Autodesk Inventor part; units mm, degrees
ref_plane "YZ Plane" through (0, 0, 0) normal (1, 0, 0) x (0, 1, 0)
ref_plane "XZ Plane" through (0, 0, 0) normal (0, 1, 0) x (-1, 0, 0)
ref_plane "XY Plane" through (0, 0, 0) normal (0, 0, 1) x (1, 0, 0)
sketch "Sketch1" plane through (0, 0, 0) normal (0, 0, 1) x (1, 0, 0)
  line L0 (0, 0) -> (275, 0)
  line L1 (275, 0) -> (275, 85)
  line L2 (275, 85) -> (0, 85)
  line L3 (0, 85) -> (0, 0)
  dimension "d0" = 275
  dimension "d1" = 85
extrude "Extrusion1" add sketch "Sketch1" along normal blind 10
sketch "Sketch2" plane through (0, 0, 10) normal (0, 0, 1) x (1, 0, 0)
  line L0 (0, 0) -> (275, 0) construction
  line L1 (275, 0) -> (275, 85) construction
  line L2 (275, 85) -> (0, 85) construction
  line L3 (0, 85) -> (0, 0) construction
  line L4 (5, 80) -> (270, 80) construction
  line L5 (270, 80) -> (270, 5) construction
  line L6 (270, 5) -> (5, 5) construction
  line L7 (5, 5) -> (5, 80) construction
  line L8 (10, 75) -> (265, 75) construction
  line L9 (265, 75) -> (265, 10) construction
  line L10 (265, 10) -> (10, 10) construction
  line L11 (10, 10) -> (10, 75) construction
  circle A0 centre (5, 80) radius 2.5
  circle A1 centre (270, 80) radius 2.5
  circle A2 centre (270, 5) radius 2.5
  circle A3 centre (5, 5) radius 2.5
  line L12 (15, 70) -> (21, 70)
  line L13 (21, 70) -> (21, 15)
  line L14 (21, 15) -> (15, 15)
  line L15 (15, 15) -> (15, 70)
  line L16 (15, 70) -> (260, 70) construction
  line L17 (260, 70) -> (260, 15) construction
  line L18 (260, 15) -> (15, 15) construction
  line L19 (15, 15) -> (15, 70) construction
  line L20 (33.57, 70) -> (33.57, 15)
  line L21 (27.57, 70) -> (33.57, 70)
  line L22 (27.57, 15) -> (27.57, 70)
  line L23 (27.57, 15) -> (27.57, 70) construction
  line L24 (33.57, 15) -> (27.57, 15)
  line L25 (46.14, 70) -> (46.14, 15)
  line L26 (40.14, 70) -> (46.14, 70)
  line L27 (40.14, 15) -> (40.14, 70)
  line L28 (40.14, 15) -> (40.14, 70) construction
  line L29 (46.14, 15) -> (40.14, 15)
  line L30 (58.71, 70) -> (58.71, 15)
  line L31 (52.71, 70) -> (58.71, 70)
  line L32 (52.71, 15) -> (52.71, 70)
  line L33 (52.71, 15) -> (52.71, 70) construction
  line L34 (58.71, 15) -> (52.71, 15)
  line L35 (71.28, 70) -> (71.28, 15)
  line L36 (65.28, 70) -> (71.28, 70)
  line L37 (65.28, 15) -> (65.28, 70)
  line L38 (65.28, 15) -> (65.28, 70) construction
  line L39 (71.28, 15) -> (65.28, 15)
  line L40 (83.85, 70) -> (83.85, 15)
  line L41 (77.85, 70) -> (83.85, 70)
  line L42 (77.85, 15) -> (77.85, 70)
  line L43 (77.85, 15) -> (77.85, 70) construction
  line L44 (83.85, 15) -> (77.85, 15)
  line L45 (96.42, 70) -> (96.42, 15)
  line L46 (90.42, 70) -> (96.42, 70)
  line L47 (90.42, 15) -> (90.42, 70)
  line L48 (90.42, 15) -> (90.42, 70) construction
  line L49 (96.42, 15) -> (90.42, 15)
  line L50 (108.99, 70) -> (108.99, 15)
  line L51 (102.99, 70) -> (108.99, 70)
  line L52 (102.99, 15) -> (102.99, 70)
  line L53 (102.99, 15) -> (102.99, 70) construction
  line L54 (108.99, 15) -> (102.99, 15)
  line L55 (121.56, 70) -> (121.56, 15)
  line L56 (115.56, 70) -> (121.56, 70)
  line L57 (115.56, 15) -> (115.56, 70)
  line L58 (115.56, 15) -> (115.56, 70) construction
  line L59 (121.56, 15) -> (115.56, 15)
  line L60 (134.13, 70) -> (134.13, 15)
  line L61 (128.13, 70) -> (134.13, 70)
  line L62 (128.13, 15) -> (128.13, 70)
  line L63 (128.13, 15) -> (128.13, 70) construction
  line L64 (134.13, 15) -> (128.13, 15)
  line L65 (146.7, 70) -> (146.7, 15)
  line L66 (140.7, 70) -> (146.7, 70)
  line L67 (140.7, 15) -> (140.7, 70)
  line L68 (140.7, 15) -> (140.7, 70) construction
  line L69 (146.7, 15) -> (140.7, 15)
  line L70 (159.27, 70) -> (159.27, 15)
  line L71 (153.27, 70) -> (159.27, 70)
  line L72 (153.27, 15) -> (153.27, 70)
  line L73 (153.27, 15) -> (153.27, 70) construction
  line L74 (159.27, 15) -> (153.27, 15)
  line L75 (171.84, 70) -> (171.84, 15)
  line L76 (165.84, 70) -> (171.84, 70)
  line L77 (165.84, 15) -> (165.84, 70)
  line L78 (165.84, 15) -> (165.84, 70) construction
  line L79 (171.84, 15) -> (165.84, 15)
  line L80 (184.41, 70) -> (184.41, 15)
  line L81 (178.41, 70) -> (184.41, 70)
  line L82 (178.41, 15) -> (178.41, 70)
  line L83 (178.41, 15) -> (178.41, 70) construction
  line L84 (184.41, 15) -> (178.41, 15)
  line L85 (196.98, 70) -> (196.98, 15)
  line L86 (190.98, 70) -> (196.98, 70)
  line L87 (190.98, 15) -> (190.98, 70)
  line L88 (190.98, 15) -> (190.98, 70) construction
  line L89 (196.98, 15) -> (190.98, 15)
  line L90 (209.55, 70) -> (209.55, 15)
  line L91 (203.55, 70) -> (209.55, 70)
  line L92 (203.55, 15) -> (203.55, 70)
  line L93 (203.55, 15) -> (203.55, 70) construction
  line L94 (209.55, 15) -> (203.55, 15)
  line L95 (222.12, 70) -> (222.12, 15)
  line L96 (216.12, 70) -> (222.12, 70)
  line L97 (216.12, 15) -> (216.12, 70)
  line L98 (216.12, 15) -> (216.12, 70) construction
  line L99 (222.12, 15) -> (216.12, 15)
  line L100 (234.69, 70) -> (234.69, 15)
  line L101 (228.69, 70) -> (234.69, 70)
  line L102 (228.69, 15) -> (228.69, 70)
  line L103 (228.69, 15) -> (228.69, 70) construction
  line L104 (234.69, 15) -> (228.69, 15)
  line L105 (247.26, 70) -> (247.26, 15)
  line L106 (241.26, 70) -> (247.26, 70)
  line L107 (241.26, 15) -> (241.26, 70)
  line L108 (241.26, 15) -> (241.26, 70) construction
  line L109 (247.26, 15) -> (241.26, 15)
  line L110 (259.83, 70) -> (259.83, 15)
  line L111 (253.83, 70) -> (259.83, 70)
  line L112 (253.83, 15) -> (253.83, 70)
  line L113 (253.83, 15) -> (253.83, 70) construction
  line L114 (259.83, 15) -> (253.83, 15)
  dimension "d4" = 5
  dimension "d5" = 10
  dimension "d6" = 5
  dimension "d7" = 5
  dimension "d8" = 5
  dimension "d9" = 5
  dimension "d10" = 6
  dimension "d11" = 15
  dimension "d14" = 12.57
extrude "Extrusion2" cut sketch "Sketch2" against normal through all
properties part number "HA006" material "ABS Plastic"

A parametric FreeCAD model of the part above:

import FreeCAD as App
import Part
import Sketcher
from FreeCAD import Vector
Q = App.Units.Quantity


def add_polygon(sketch, points):
    """Adds a closed chain of lines whose ends are joined by coincident constraints."""
    first, n = sketch.GeometryCount, len(points)
    for a, b in zip(points, points[1:] + points[:1]):
        sketch.addGeometry(Part.LineSegment(App.Vector(*a, 0), App.Vector(*b, 0)), False)
    for i in range(n):
        sketch.addConstraint(Sketcher.Constraint("Coincident", first + i, 2, first + (i + 1) % n, 1))

doc = App.newDocument("Part")
body = doc.addObject("PartDesign::Body", "Body")

# Sketch on XY plane
sketch1 = doc.addObject("Sketcher::SketchObject", "Sketch")
body.addObject(sketch1)
sketch1.AttachmentSupport = (doc.XY_Plane, [""])
sketch1.MapMode = "FlatFace"
add_polygon(sketch1, [(0, 85), (0, 0), (275, 0), (275, 85)])  # lines 0-3
sketch1.addConstraint(Sketcher.Constraint("Vertical", 0))
sketch1.addConstraint(Sketcher.Constraint("Horizontal", 1))
sketch1.addConstraint(Sketcher.Constraint("Vertical", 2))
sketch1.addConstraint(Sketcher.Constraint("Horizontal", 3))
sketch1.addConstraint(Sketcher.Constraint("Coincident", 0, 2, -1, 1))
sketch1.addConstraint(Sketcher.Constraint("DistanceX", 1, 1, 1, 2, Q("275 mm")))
sketch1.addConstraint(Sketcher.Constraint("DistanceY", 0, 2, 0, 1, Q("85 mm")))
pad1 = doc.addObject("PartDesign::Pad", "Pad")
body.addObject(pad1)
pad1.Profile = sketch1
pad1.Length = 10

# Sketch on XY plane
sketch2 = doc.addObject("Sketcher::SketchObject", "Sketch001")
body.addObject(sketch2)
sketch2.AttachmentSupport = (doc.XY_Plane, [""])
sketch2.MapMode = "FlatFace"
sketch2.AttachmentOffset = App.Placement(Vector(0, 0, 10), App.Rotation())
sketch2.addGeometry(Part.Circle(Vector(5, 80, 0), Vector(0, 0, 1), 2.5), False)  # 0
sketch2.addGeometry(Part.Circle(Vector(270, 80, 0), Vector(0, 0, 1), 2.5), False)  # 1
sketch2.addGeometry(Part.Circle(Vector(270, 5, 0), Vector(0, 0, 1), 2.5), False)  # 2
sketch2.addGeometry(Part.Circle(Vector(5, 5, 0), Vector(0, 0, 1), 2.5), False)  # 3
add_polygon(sketch2, [(21, 70), (15, 70), (15, 15), (21, 15)])  # lines 4-7
add_polygon(sketch2, [(33.6, 15), (33.6, 70), (27.6, 70), (27.6, 15)])  # lines 8-11
add_polygon(sketch2, [(46.1, 15), (46.1, 70), (40.1, 70), (40.1, 15)])  # lines 12-15
add_polygon(sketch2, [(58.7, 15), (58.7, 70), (52.7, 70), (52.7, 15)])  # lines 16-19
add_polygon(sketch2, [(71.3, 15), (71.3, 70), (65.3, 70), (65.3, 15)])  # lines 20-23
add_polygon(sketch2, [(83.8, 15), (83.8, 70), (77.8, 70), (77.8, 15)])  # lines 24-27
add_polygon(sketch2, [(96.4, 15), (96.4, 70), (90.4, 70), (90.4, 15)])  # lines 28-31
add_polygon(sketch2, [(109, 15), (109, 70), (103, 70), (103, 15)])  # lines 32-35
add_polygon(sketch2, [(121.6, 15), (121.6, 70), (115.6, 70), (115.6, 15)])  # lines 36-39
add_polygon(sketch2, [(134.1, 15), (134.1, 70), (128.1, 70), (128.1, 15)])  # lines 40-43
add_polygon(sketch2, [(146.7, 15), (146.7, 70), (140.7, 70), (140.7, 15)])  # lines 44-47
add_polygon(sketch2, [(159.3, 15), (159.3, 70), (153.3, 70), (153.3, 15)])  # lines 48-51
add_polygon(sketch2, [(171.8, 15), (171.8, 70), (165.8, 70), (165.8, 15)])  # lines 52-55
add_polygon(sketch2, [(184.4, 15), (184.4, 70), (178.4, 70), (178.4, 15)])  # lines 56-59
add_polygon(sketch2, [(197, 15), (197, 70), (191, 70), (191, 15)])  # lines 60-63
add_polygon(sketch2, [(209.6, 15), (209.6, 70), (203.6, 70), (203.6, 15)])  # lines 64-67
add_polygon(sketch2, [(222.1, 15), (222.1, 70), (216.1, 70), (216.1, 15)])  # lines 68-71
add_polygon(sketch2, [(234.7, 15), (234.7, 70), (228.7, 70), (228.7, 15)])  # lines 72-75
add_polygon(sketch2, [(247.3, 15), (247.3, 70), (241.3, 70), (241.3, 15)])  # lines 76-79
add_polygon(sketch2, [(259.8, 15), (259.8, 70), (253.8, 70), (253.8, 15)])  # lines 80-83
sketch2.addConstraint(Sketcher.Constraint("Horizontal", 4))
sketch2.addConstraint(Sketcher.Constraint("Vertical", 5))
sketch2.addConstraint(Sketcher.Constraint("Horizontal", 6))
sketch2.addConstraint(Sketcher.Constraint("Vertical", 7))
sketch2.addConstraint(Sketcher.Constraint("Vertical", 8))
sketch2.addConstraint(Sketcher.Constraint("Horizontal", 9))
sketch2.addConstraint(Sketcher.Constraint("Vertical", 10))
sketch2.addConstraint(Sketcher.Constraint("Horizontal", 11))
sketch2.addConstraint(Sketcher.Constraint("Vertical", 12))
sketch2.addConstraint(Sketcher.Constraint("Horizontal", 13))
sketch2.addConstraint(Sketcher.Constraint("Vertical", 14))
sketch2.addConstraint(Sketcher.Constraint("Horizontal", 15))
sketch2.addConstraint(Sketcher.Constraint("Vertical", 16))
sketch2.addConstraint(Sketcher.Constraint("Horizontal", 17))
sketch2.addConstraint(Sketcher.Constraint("Vertical", 18))
sketch2.addConstraint(Sketcher.Constraint("Horizontal", 19))
sketch2.addConstraint(Sketcher.Constraint("Vertical", 20))
sketch2.addConstraint(Sketcher.Constraint("Horizontal", 21))
sketch2.addConstraint(Sketcher.Constraint("Vertical", 22))
sketch2.addConstraint(Sketcher.Constraint("Horizontal", 23))
sketch2.addConstraint(Sketcher.Constraint("Vertical", 24))
sketch2.addConstraint(Sketcher.Constraint("Horizontal", 25))
sketch2.addConstraint(Sketcher.Constraint("Vertical", 26))
sketch2.addConstraint(Sketcher.Constraint("Horizontal", 27))
sketch2.addConstraint(Sketcher.Constraint("Vertical", 28))
sketch2.addConstraint(Sketcher.Constraint("Horizontal", 29))
sketch2.addConstraint(Sketcher.Constraint("Vertical", 30))
sketch2.addConstraint(Sketcher.Constraint("Horizontal", 31))
sketch2.addConstraint(Sketcher.Constraint("Vertical", 32))
sketch2.addConstraint(Sketcher.Constraint("Horizontal", 33))
sketch2.addConstraint(Sketcher.Constraint("Vertical", 34))
sketch2.addConstraint(Sketcher.Constraint("Horizontal", 35))
sketch2.addConstraint(Sketcher.Constraint("Vertical", 36))
sketch2.addConstraint(Sketcher.Constraint("Horizontal", 37))
sketch2.addConstraint(Sketcher.Constraint("Vertical", 38))
sketch2.addConstraint(Sketcher.Constraint("Horizontal", 39))
sketch2.addConstraint(Sketcher.Constraint("Vertical", 40))
sketch2.addConstraint(Sketcher.Constraint("Horizontal", 41))
sketch2.addConstraint(Sketcher.Constraint("Vertical", 42))
sketch2.addConstraint(Sketcher.Constraint("Horizontal", 43))
sketch2.addConstraint(Sketcher.Constraint("Vertical", 44))
sketch2.addConstraint(Sketcher.Constraint("Horizontal", 45))
sketch2.addConstraint(Sketcher.Constraint("Vertical", 46))
sketch2.addConstraint(Sketcher.Constraint("Horizontal", 47))
sketch2.addConstraint(Sketcher.Constraint("Vertical", 48))
sketch2.addConstraint(Sketcher.Constraint("Horizontal", 49))
sketch2.addConstraint(Sketcher.Constraint("Vertical", 50))
sketch2.addConstraint(Sketcher.Constraint("Horizontal", 51))
sketch2.addConstraint(Sketcher.Constraint("Vertical", 52))
sketch2.addConstraint(Sketcher.Constraint("Horizontal", 53))
sketch2.addConstraint(Sketcher.Constraint("Vertical", 54))
sketch2.addConstraint(Sketcher.Constraint("Horizontal", 55))
sketch2.addConstraint(Sketcher.Constraint("Vertical", 56))
sketch2.addConstraint(Sketcher.Constraint("Horizontal", 57))
sketch2.addConstraint(Sketcher.Constraint("Vertical", 58))
sketch2.addConstraint(Sketcher.Constraint("Horizontal", 59))
sketch2.addConstraint(Sketcher.Constraint("Vertical", 60))
sketch2.addConstraint(Sketcher.Constraint("Horizontal", 61))
sketch2.addConstraint(Sketcher.Constraint("Vertical", 62))
sketch2.addConstraint(Sketcher.Constraint("Horizontal", 63))
sketch2.addConstraint(Sketcher.Constraint("Vertical", 64))
sketch2.addConstraint(Sketcher.Constraint("Horizontal", 65))
sketch2.addConstraint(Sketcher.Constraint("Vertical", 66))
sketch2.addConstraint(Sketcher.Constraint("Horizontal", 67))
sketch2.addConstraint(Sketcher.Constraint("Vertical", 68))
sketch2.addConstraint(Sketcher.Constraint("Horizontal", 69))
sketch2.addConstraint(Sketcher.Constraint("Vertical", 70))
sketch2.addConstraint(Sketcher.Constraint("Horizontal", 71))
sketch2.addConstraint(Sketcher.Constraint("Vertical", 72))
sketch2.addConstraint(Sketcher.Constraint("Horizontal", 73))
sketch2.addConstraint(Sketcher.Constraint("Vertical", 74))
sketch2.addConstraint(Sketcher.Constraint("Horizontal", 75))
sketch2.addConstraint(Sketcher.Constraint("Vertical", 76))
sketch2.addConstraint(Sketcher.Constraint("Horizontal", 77))
sketch2.addConstraint(Sketcher.Constraint("Vertical", 78))
sketch2.addConstraint(Sketcher.Constraint("Horizontal", 79))
sketch2.addConstraint(Sketcher.Constraint("Vertical", 80))
sketch2.addConstraint(Sketcher.Constraint("Horizontal", 81))
sketch2.addConstraint(Sketcher.Constraint("Vertical", 82))
sketch2.addConstraint(Sketcher.Constraint("Horizontal", 83))
sketch2.addConstraint(Sketcher.Constraint("Equal", 0, 1))
sketch2.addConstraint(Sketcher.Constraint("Equal", 1, 2))
sketch2.addConstraint(Sketcher.Constraint("Equal", 2, 3))
sketch2.addConstraint(Sketcher.Constraint("Horizontal", 0, 3, 1, 3))
sketch2.addConstraint(Sketcher.Constraint("Horizontal", 2, 3, 3, 3))
sketch2.addConstraint(Sketcher.Constraint("Horizontal", 7, 2, 8, 2))
sketch2.addConstraint(Sketcher.Constraint("Horizontal", 6, 2, 10, 2))
sketch2.addConstraint(Sketcher.Constraint("Horizontal", 9, 2, 12, 2))
sketch2.addConstraint(Sketcher.Constraint("Horizontal", 11, 2, 14, 2))
sketch2.addConstraint(Sketcher.Constraint("Horizontal", 13, 2, 16, 2))
sketch2.addConstraint(Sketcher.Constraint("Horizontal", 15, 2, 18, 2))
sketch2.addConstraint(Sketcher.Constraint("Horizontal", 17, 2, 20, 2))
sketch2.addConstraint(Sketcher.Constraint("Horizontal", 19, 2, 22, 2))
sketch2.addConstraint(Sketcher.Constraint("Horizontal", 21, 2, 24, 2))
sketch2.addConstraint(Sketcher.Constraint("Horizontal", 23, 2, 26, 2))
sketch2.addConstraint(Sketcher.Constraint("Horizontal", 25, 2, 28, 2))
sketch2.addConstraint(Sketcher.Constraint("Horizontal", 27, 2, 30, 2))
sketch2.addConstraint(Sketcher.Constraint("Horizontal", 29, 2, 32, 2))
sketch2.addConstraint(Sketcher.Constraint("Horizontal", 31, 2, 34, 2))
sketch2.addConstraint(Sketcher.Constraint("Horizontal", 33, 2, 36, 2))
sketch2.addConstraint(Sketcher.Constraint("Horizontal", 35, 2, 38, 2))
sketch2.addConstraint(Sketcher.Constraint("Horizontal", 37, 2, 40, 2))
sketch2.addConstraint(Sketcher.Constraint("Horizontal", 39, 2, 42, 2))
sketch2.addConstraint(Sketcher.Constraint("Horizontal", 41, 2, 44, 2))
sketch2.addConstraint(Sketcher.Constraint("Horizontal", 43, 2, 46, 2))
sketch2.addConstraint(Sketcher.Constraint("Horizontal", 45, 2, 48, 2))
sketch2.addConstraint(Sketcher.Constraint("Horizontal", 47, 2, 50, 2))
sketch2.addConstraint(Sketcher.Constraint("Horizontal", 49, 2, 52, 2))
sketch2.addConstraint(Sketcher.Constraint("Horizontal", 51, 2, 54, 2))
sketch2.addConstraint(Sketcher.Constraint("Horizontal", 53, 2, 56, 2))
sketch2.addConstraint(Sketcher.Constraint("Horizontal", 55, 2, 58, 2))
sketch2.addConstraint(Sketcher.Constraint("Horizontal", 57, 2, 60, 2))
sketch2.addConstraint(Sketcher.Constraint("Horizontal", 59, 2, 62, 2))
sketch2.addConstraint(Sketcher.Constraint("Horizontal", 61, 2, 64, 2))
sketch2.addConstraint(Sketcher.Constraint("Horizontal", 63, 2, 66, 2))
sketch2.addConstraint(Sketcher.Constraint("Horizontal", 65, 2, 68, 2))
sketch2.addConstraint(Sketcher.Constraint("Horizontal", 67, 2, 70, 2))
sketch2.addConstraint(Sketcher.Constraint("Horizontal", 69, 2, 72, 2))
sketch2.addConstraint(Sketcher.Constraint("Horizontal", 71, 2, 74, 2))
sketch2.addConstraint(Sketcher.Constraint("Horizontal", 73, 2, 76, 2))
sketch2.addConstraint(Sketcher.Constraint("Horizontal", 75, 2, 78, 2))
sketch2.addConstraint(Sketcher.Constraint("Horizontal", 77, 2, 80, 2))
sketch2.addConstraint(Sketcher.Constraint("Horizontal", 79, 2, 82, 2))
sketch2.addConstraint(Sketcher.Constraint("Vertical", 1, 3, 2, 3))
sketch2.addConstraint(Sketcher.Constraint("Vertical", 0, 3, 3, 3))
sketch2.addConstraint(Sketcher.Constraint("Equal", 6, 9))
sketch2.addConstraint(Sketcher.Constraint("Equal", 11, 13))
sketch2.addConstraint(Sketcher.Constraint("Equal", 15, 17))
sketch2.addConstraint(Sketcher.Constraint("Equal", 19, 21))
sketch2.addConstraint(Sketcher.Constraint("Equal", 23, 25))
sketch2.addConstraint(Sketcher.Constraint("Equal", 27, 29))
sketch2.addConstraint(Sketcher.Constraint("Equal", 31, 33))
sketch2.addConstraint(Sketcher.Constraint("Equal", 35, 37))
sketch2.addConstraint(Sketcher.Constraint("Equal", 39, 41))
sketch2.addConstraint(Sketcher.Constraint("Equal", 43, 45))
sketch2.addConstraint(Sketcher.Constraint("Equal", 47, 49))
sketch2.addConstraint(Sketcher.Constraint("Equal", 51, 53))
sketch2.addConstraint(Sketcher.Constraint("Equal", 55, 57))
sketch2.addConstraint(Sketcher.Constraint("Equal", 59, 61))
sketch2.addConstraint(Sketcher.Constraint("Equal", 63, 65))
sketch2.addConstraint(Sketcher.Constraint("Equal", 67, 69))
sketch2.addConstraint(Sketcher.Constraint("Equal", 71, 73))
sketch2.addConstraint(Sketcher.Constraint("Equal", 75, 77))
sketch2.addConstraint(Sketcher.Constraint("Equal", 79, 81))
sketch2.addConstraint(Sketcher.Constraint("Diameter", 0, Q("5 mm")))
sketch2.addConstraint(Sketcher.Constraint("DistanceX", 4, 2, 4, 1, Q("6 mm")))
sketch2.addConstraint(Sketcher.Constraint("DistanceX", -1, 1, 0, 3, Q("5 mm")))
sketch2.addConstraint(Sketcher.Constraint("DistanceY", -1, 1, 2, 3, Q("5 mm")))
sketch2.addConstraint(Sketcher.Constraint("DistanceX", -1, 1, 4, 2, Q("15 mm")))
sketch2.addConstraint(Sketcher.Constraint("DistanceY", -1, 1, 5, 2, Q("15 mm")))
sketch2.addConstraint(Sketcher.Constraint("DistanceY", 5, 2, 5, 1, Q("55 mm")))
sketch2.addConstraint(Sketcher.Constraint("DistanceY", -1, 1, 0, 3, Q("80 mm")))
sketch2.addConstraint(Sketcher.Constraint("DistanceX", -1, 1, 1, 3, Q("270 mm")))
sketch2.addConstraint(Sketcher.Constraint("DistanceX", -1, 1, 44, 2, Q("146.7 mm")))
sketch2.addConstraint(Sketcher.Constraint("DistanceX", -1, 1, 8, 2, Q("33.57 mm")))
sketch2.addConstraint(Sketcher.Constraint("DistanceX", -1, 1, 12, 2, Q("46.14 mm")))
sketch2.addConstraint(Sketcher.Constraint("DistanceX", -1, 1, 16, 2, Q("58.71 mm")))
sketch2.addConstraint(Sketcher.Constraint("DistanceX", -1, 1, 20, 2, Q("71.28 mm")))
sketch2.addConstraint(Sketcher.Constraint("DistanceX", -1, 1, 24, 2, Q("83.85 mm")))
sketch2.addConstraint(Sketcher.Constraint("DistanceX", -1, 1, 28, 2, Q("96.42 mm")))
sketch2.addConstraint(Sketcher.Constraint("DistanceX", -1, 1, 32, 2, Q("108.99 mm")))
sketch2.addConstraint(Sketcher.Constraint("DistanceX", -1, 1, 36, 2, Q("121.56 mm")))
sketch2.addConstraint(Sketcher.Constraint("DistanceX", -1, 1, 40, 2, Q("134.13 mm")))
sketch2.addConstraint(Sketcher.Constraint("DistanceX", -1, 1, 48, 2, Q("159.27 mm")))
sketch2.addConstraint(Sketcher.Constraint("DistanceX", -1, 1, 52, 2, Q("171.84 mm")))
sketch2.addConstraint(Sketcher.Constraint("DistanceX", -1, 1, 56, 2, Q("184.41 mm")))
sketch2.addConstraint(Sketcher.Constraint("DistanceX", -1, 1, 60, 2, Q("196.98 mm")))
sketch2.addConstraint(Sketcher.Constraint("DistanceX", -1, 1, 64, 2, Q("209.55 mm")))
sketch2.addConstraint(Sketcher.Constraint("DistanceX", -1, 1, 68, 2, Q("222.12 mm")))
sketch2.addConstraint(Sketcher.Constraint("DistanceX", -1, 1, 72, 2, Q("234.69 mm")))
sketch2.addConstraint(Sketcher.Constraint("DistanceX", -1, 1, 76, 2, Q("247.26 mm")))
sketch2.addConstraint(Sketcher.Constraint("DistanceX", -1, 1, 80, 2, Q("259.83 mm")))
pocket1 = doc.addObject("PartDesign::Pocket", "Pocket")
body.addObject(pocket1)
pocket1.Profile = sketch2
pocket1.Type = "ThroughAll"

doc.recompute()
